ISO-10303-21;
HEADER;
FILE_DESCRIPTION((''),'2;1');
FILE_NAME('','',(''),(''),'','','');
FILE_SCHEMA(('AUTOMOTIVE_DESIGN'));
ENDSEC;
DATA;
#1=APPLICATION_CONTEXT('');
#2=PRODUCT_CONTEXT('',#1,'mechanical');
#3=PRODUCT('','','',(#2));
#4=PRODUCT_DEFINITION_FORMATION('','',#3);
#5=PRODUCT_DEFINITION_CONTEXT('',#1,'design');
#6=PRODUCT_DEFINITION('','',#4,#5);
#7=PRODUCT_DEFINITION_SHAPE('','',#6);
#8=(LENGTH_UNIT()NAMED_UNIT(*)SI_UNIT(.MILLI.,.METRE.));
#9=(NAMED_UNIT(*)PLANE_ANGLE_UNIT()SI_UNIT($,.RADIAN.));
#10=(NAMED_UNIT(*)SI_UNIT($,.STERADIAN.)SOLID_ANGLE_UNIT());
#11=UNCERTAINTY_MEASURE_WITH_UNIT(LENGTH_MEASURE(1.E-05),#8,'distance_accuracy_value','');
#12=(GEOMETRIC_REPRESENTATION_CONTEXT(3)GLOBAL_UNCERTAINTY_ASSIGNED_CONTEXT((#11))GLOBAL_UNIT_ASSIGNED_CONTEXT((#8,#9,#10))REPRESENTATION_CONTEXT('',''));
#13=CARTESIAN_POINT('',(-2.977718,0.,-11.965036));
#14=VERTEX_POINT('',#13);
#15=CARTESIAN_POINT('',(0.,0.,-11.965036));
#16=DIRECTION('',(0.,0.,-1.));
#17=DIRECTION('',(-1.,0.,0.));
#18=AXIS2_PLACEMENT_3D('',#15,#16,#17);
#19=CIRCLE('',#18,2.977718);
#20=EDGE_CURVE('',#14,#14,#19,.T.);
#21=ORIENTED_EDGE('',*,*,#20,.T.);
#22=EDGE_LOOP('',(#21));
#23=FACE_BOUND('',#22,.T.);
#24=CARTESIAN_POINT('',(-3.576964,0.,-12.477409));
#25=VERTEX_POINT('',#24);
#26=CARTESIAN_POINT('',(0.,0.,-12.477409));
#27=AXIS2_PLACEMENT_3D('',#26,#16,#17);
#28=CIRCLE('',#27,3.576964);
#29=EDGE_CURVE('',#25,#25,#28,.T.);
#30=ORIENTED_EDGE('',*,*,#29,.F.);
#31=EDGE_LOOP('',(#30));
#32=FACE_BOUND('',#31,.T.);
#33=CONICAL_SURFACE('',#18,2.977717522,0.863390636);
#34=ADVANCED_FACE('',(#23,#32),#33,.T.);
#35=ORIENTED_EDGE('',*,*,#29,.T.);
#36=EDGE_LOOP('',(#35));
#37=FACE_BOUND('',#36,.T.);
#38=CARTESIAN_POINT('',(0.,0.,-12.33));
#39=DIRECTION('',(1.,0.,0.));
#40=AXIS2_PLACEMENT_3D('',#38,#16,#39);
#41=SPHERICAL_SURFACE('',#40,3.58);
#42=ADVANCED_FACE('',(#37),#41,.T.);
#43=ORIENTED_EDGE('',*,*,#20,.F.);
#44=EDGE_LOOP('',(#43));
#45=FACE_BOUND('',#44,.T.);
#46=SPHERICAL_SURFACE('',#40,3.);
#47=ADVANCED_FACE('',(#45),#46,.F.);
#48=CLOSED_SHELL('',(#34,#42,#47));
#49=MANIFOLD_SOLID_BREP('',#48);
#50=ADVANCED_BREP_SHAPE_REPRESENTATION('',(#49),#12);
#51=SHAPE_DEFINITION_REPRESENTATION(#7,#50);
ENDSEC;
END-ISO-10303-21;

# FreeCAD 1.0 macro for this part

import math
import FreeCAD as App
import Part
import Sketcher

V = App.Vector

doc = App.newDocument("Part")
params = doc.addObject("Spreadsheet::Sheet", "Params")
for row, (alias, value) in enumerate([
    ("sketch1_radius", "3 mm"),
    ("sketch1_radius2", "3.58 mm"),
    ("revolution_angle", "360 deg"),
], start=1):
    params.set(f"A{row}", alias)
    params.set(f"B{row}", "=" + value)
    params.setAlias(f"B{row}", alias)

body = doc.addObject("PartDesign::Body", "Body")

# Sketch on XZ plane
sketch1 = body.newObject("Sketcher::SketchObject", "Sketch")
sketch1.AttachmentSupport = (doc.getObject("XZ_Plane"), [""])
sketch1.MapMode = "FlatFace"
sketch1.addGeometry([
    Part.LineSegment(V(3, -12, 0), V(3.6, -12.5, 0)),
    Part.ArcOfCircle(Part.Circle(V(0, -12.3, 0), V(0, 0, 1), 3.6), math.radians(-90), math.radians(-2)),
    Part.LineSegment(V(0, -15.9, 0), V(0, -15.3, 0)),
    Part.ArcOfCircle(Part.Circle(V(0, -12.3, 0), V(0, 0, 1), 3), math.radians(-90), math.radians(7)),
], False)
sketch1.addConstraint([
    Sketcher.Constraint("Coincident", 0, 2, 1, 2),
    Sketcher.Constraint("Coincident", 1, 1, 2, 1),
    Sketcher.Constraint("Coincident", 2, 2, 3, 1),
    Sketcher.Constraint("Coincident", 3, 2, 0, 1),
    Sketcher.Constraint("Vertical", 2),
    Sketcher.Constraint("Coincident", 3, 3, 1, 3),
    Sketcher.Constraint("PointOnObject", 1, 3, -2),
    Sketcher.Constraint("PointOnObject", 1, 1, -2),
    Sketcher.Constraint("Radius", 3, 3.0),
    Sketcher.Constraint("Radius", 1, 3.58),
    Sketcher.Constraint("DistanceY", 1, 3, -1, 1, 12.33),
    Sketcher.Constraint("Distance", 0, 0.78843),
    Sketcher.Constraint("DistanceY", 0, 2, -1, 1, 12.477409),
])
sketch1.setExpression("Constraints[8]", "Params.sketch1_radius")
sketch1.setExpression("Constraints[9]", "Params.sketch1_radius2")
revolution = body.newObject("PartDesign::Revolution", "Revolution")
revolution.Profile = sketch1
revolution.ReferenceAxis = (sketch1, ["V_Axis"])
revolution.setExpression("Angle", "Params.revolution_angle")

doc.recompute()
